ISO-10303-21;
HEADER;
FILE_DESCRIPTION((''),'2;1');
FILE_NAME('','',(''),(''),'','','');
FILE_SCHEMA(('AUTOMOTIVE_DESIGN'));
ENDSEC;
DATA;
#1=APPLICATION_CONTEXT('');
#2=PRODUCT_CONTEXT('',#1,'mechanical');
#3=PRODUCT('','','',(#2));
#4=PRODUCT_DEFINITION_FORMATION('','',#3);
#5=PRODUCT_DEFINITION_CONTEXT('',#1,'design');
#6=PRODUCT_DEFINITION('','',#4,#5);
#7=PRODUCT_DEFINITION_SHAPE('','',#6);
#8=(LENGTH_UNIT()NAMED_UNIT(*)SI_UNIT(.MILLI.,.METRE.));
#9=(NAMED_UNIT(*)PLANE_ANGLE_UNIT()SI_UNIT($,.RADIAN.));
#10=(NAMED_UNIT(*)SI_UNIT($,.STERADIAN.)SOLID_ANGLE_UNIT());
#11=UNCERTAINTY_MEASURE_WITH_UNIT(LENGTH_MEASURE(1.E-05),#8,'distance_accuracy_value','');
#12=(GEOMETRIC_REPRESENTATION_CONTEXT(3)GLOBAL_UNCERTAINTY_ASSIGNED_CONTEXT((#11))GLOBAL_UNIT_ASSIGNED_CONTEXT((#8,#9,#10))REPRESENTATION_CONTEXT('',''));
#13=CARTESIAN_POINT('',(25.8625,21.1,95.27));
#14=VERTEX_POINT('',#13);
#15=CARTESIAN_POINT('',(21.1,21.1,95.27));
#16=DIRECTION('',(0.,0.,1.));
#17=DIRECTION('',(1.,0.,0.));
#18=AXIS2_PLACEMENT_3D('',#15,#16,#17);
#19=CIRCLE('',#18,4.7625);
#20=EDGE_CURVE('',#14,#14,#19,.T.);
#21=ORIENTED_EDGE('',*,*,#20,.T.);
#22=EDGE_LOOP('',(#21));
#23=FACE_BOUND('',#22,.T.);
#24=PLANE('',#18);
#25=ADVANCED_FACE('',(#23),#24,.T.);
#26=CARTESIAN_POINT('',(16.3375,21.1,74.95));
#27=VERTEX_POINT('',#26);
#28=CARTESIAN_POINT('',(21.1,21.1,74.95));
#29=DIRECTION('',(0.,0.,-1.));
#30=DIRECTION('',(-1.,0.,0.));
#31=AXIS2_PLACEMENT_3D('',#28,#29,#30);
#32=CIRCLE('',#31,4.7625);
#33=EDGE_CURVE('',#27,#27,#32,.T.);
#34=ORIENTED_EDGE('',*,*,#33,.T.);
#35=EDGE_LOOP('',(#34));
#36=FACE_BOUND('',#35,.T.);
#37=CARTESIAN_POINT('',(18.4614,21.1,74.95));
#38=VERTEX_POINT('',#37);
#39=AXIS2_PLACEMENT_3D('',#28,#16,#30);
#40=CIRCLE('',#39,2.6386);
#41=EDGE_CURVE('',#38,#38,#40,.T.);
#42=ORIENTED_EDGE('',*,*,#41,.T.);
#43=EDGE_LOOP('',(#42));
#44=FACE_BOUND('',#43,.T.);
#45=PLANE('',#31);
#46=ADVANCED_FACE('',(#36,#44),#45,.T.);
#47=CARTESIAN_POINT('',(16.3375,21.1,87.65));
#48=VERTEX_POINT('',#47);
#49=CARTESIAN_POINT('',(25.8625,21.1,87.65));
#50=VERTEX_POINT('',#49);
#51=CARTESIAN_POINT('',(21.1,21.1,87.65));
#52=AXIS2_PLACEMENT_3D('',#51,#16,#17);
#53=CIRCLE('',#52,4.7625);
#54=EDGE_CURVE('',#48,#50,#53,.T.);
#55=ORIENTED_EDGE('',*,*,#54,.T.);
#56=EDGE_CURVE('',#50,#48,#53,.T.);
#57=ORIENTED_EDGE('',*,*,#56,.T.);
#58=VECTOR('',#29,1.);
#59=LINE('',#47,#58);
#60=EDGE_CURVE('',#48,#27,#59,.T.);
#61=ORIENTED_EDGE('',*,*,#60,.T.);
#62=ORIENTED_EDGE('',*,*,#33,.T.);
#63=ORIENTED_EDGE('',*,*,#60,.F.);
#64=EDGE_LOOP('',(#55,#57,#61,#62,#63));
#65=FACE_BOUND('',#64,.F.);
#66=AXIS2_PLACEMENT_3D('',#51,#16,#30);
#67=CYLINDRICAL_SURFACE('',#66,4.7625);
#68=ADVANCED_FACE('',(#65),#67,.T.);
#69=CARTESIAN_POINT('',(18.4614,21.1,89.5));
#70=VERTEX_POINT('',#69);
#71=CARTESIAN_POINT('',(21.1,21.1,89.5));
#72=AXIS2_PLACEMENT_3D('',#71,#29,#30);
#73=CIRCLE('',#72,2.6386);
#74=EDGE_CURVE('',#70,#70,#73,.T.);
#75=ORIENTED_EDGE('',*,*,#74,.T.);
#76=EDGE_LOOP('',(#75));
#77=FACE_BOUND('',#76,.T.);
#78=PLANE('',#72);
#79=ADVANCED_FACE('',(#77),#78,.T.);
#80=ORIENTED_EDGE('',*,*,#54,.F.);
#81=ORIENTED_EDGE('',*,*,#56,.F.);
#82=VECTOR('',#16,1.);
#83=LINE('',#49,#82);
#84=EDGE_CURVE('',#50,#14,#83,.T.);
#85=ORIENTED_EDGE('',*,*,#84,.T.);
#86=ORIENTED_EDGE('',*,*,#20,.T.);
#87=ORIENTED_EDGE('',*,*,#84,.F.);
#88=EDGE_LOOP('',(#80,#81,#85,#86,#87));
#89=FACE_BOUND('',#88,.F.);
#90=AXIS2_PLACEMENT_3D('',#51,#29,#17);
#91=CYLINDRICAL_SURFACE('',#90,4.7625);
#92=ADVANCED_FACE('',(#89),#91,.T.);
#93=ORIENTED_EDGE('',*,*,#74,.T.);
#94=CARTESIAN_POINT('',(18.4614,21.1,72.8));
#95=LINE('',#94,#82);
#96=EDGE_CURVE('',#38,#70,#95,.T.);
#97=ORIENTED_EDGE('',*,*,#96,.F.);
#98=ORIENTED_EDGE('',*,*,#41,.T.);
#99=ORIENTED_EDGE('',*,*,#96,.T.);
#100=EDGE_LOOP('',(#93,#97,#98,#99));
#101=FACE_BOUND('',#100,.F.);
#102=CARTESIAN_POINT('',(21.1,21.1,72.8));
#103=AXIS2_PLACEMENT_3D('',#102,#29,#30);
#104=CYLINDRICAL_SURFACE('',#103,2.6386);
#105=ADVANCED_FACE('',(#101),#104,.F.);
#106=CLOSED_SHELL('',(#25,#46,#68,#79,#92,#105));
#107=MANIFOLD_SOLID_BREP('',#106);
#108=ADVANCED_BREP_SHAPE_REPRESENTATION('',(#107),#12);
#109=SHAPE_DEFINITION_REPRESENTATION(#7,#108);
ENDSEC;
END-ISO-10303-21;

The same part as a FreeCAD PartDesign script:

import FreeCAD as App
import Part
import Sketcher

V = App.Vector
Q = App.Units.Quantity


def edges_at(feature, points):
    """Names of the edges that pass closest to the given points."""
    edges = feature.Shape.Edges
    near = lambda p: min(range(len(edges)), key=lambda i: edges[i].distToShape(Part.Vertex(*p))[0])
    return sorted({f"Edge{near(p) + 1}" for p in points})

doc = App.newDocument("Part")
body = doc.addObject("PartDesign::Body", "Body")
body.AllowCompound = True

sketch1 = doc.addObject("Sketcher::SketchObject", "Sketch")
body.addObject(sketch1)
sketch1.AttachmentSupport = (doc.XY_Plane, [""])
sketch1.MapMode = "FlatFace"
sketch1.addGeometry([
    Part.LineSegment(V(5, 42.2, 0), V(0, 37.2, 0)),
    Part.LineSegment(V(0, 37.2, 0), V(0, 5, 0)),
    Part.LineSegment(V(0, 5, 0), V(5, 0, 0)),
    Part.LineSegment(V(5, 0, 0), V(37.2, 0, 0)),
    Part.LineSegment(V(37.2, 0, 0), V(42.2, 5, 0)),
    Part.LineSegment(V(42.2, 5, 0), V(42.2, 37.2, 0)),
    Part.LineSegment(V(42.2, 37.2, 0), V(37.2, 42.2, 0)),
    Part.LineSegment(V(37.2, 42.2, 0), V(5, 42.2, 0)),
    Part.Circle(V(5.6, 5.6, 0), V(0, 0, 1), 1.5),
    Part.Circle(V(36.6, 5.6, 0), V(0, 0, 1), 1.5),
    Part.Circle(V(5.6, 36.6, 0), V(0, 0, 1), 1.5),
    Part.Circle(V(21.1, 21.1, 0), V(0, 0, 1), 2.5),
    Part.Circle(V(36.6, 36.6, 0), V(0, 0, 1), 1.5),
], False)
sketch1.addConstraint([
    Sketcher.Constraint("Coincident", 0, 2, 1, 1),
    Sketcher.Constraint("Coincident", 1, 2, 2, 1),
    Sketcher.Constraint("Coincident", 2, 2, 3, 1),
    Sketcher.Constraint("Coincident", 3, 2, 4, 1),
    Sketcher.Constraint("Coincident", 4, 2, 5, 1),
    Sketcher.Constraint("Coincident", 5, 2, 6, 1),
    Sketcher.Constraint("Coincident", 6, 2, 7, 1),
    Sketcher.Constraint("Coincident", 7, 2, 0, 1),
    Sketcher.Constraint("Vertical", 1),
    Sketcher.Constraint("Horizontal", 3),
    Sketcher.Constraint("Vertical", 5),
    Sketcher.Constraint("Horizontal", 7),
    Sketcher.Constraint("Equal", 8, 9),
    Sketcher.Constraint("Equal", 9, 10),
    Sketcher.Constraint("Equal", 10, 12),
    Sketcher.Constraint("PointOnObject", 0, 2, -2),
    Sketcher.Constraint("PointOnObject", 2, 2, -1),
    Sketcher.Constraint("Perpendicular", 0, 2),
    Sketcher.Constraint("Perpendicular", 2, 4),
    Sketcher.Constraint("Perpendicular", 4, 6),
    Sketcher.Constraint("Horizontal", 8, 3, 9, 3),
    Sketcher.Constraint("Horizontal", 10, 3, 12, 3),
    Sketcher.Constraint("Horizontal", 1, 2, 4, 2),
    Sketcher.Constraint("Horizontal", 0, 2, 5, 2),
    Sketcher.Constraint("Vertical", 8, 3, 10, 3),
    Sketcher.Constraint("Vertical", 9, 3, 12, 3),
    Sketcher.Constraint("Vertical", 3, 2, 6, 2),
    Sketcher.Constraint("Vertical", 2, 2, 7, 2),
    Sketcher.Constraint("Equal", 7, 1),
    Sketcher.Constraint("Diameter", 8, Q("3 mm")),
    Sketcher.Constraint("Diameter", 11, Q("5 mm")),
    Sketcher.Constraint("DistanceY", -1, 1, 1, 2, Q("5 mm")),
    Sketcher.Constraint("DistanceX", 8, 3, 9, 3, Q("31 mm")),
    Sketcher.Constraint("DistanceY", 8, 3, 10, 3, Q("31 mm")),
    Sketcher.Constraint("DistanceX", -1, 1, 8, 3, Q("5.6 mm")),
    Sketcher.Constraint("DistanceY", -1, 1, 8, 3, Q("5.6 mm")),
    Sketcher.Constraint("DistanceX", -1, 1, 11, 3, Q("21.1 mm")),
    Sketcher.Constraint("DistanceY", -1, 1, 11, 3, Q("21.1 mm")),
    Sketcher.Constraint("DistanceX", -1, 1, 4, 2, Q("42.2 mm")),
])
pad1 = doc.addObject("PartDesign::Pad", "Pad")
body.addObject(pad1)
pad1.Profile = sketch1
pad1.Length = 9.8
doc.recompute()

fillet = doc.addObject("PartDesign::Fillet", "Fillet")
body.addObject(fillet)
fillet.Base = (pad1, edges_at(pad1, [
    (21.1, 42.2, 9.8),
    (39.7, 39.7, 9.8),
    (42.2, 21.1, 9.8),
    (39.7, 2.5, 9.8),
    (21.1, 0, 9.8),
    (2.5, 2.5, 9.8),
    (0, 21.1, 9.8),
    (2.5, 39.7, 9.8),
]))
fillet.Radius = 0.25

sketch2 = doc.addObject("Sketcher::SketchObject", "Sketch001")
body.addObject(sketch2)
sketch2.AttachmentSupport = (doc.XY_Plane, [""])
sketch2.MapMode = "FlatFace"
sketch2.AttachmentOffset = App.Placement(V(0, 0, 9.8), App.Rotation())
sketch2.addGeometry([
    Part.LineSegment(V(37.2, 42.2, 0), V(5, 42.2, 0)),
    Part.LineSegment(V(5, 42.2, 0), V(0, 37.2, 0)),
    Part.LineSegment(V(0, 37.2, 0), V(0, 5, 0)),
    Part.LineSegment(V(0, 5, 0), V(5, 0, 0)),
    Part.LineSegment(V(5, 0, 0), V(37.2, 0, 0)),
    Part.LineSegment(V(37.2, 0, 0), V(42.2, 5, 0)),
    Part.LineSegment(V(42.2, 5, 0), V(42.2, 37.2, 0)),
    Part.LineSegment(V(42.2, 37.2, 0), V(37.2, 42.2, 0)),
    Part.Circle(V(5.6, 5.6, 0), V(0, 0, 1), 1.5),
    Part.Circle(V(36.6, 5.6, 0), V(0, 0, 1), 1.5),
    Part.Circle(V(5.6, 36.6, 0), V(0, 0, 1), 1.5),
    Part.Circle(V(21.1, 21.1, 0), V(0, 0, 1), 2.5),
    Part.Circle(V(36.6, 36.6, 0), V(0, 0, 1), 1.5),
], False)
sketch2.addConstraint([
    Sketcher.Constraint("Coincident", 0, 2, 1, 1),
    Sketcher.Constraint("Coincident", 1, 2, 2, 1),
    Sketcher.Constraint("Coincident", 2, 2, 3, 1),
    Sketcher.Constraint("Coincident", 3, 2, 4, 1),
    Sketcher.Constraint("Coincident", 4, 2, 5, 1),
    Sketcher.Constraint("Coincident", 5, 2, 6, 1),
    Sketcher.Constraint("Coincident", 6, 2, 7, 1),
    Sketcher.Constraint("Coincident", 7, 2, 0, 1),
    Sketcher.Constraint("Horizontal", 0),
    Sketcher.Constraint("Vertical", 2),
    Sketcher.Constraint("Horizontal", 4),
    Sketcher.Constraint("Vertical", 6),
    Sketcher.Constraint("Equal", 8, 9),
    Sketcher.Constraint("Equal", 9, 10),
    Sketcher.Constraint("Equal", 10, 12),
    Sketcher.Constraint("PointOnObject", 1, 2, -2),
    Sketcher.Constraint("PointOnObject", 3, 2, -1),
    Sketcher.Constraint("Perpendicular", 1, 3),
    Sketcher.Constraint("Perpendicular", 3, 5),
    Sketcher.Constraint("Perpendicular", 5, 7),
    Sketcher.Constraint("Horizontal", 8, 3, 9, 3),
    Sketcher.Constraint("Horizontal", 10, 3, 12, 3),
    Sketcher.Constraint("Horizontal", 2, 2, 5, 2),
    Sketcher.Constraint("Horizontal", 1, 2, 6, 2),
    Sketcher.Constraint("Vertical", 8, 3, 10, 3),
    Sketcher.Constraint("Vertical", 9, 3, 12, 3),
    Sketcher.Constraint("Vertical", 0, 2, 3, 2),
    Sketcher.Constraint("Vertical", 4, 2, 7, 2),
    Sketcher.Constraint("Equal", 4, 2),
    Sketcher.Constraint("Diameter", 8, Q("3 mm")),
    Sketcher.Constraint("Diameter", 11, Q("5 mm")),
    Sketcher.Constraint("DistanceX", 0, 2, 0, 1, Q("32.2 mm")),
    Sketcher.Constraint("DistanceX", -1, 1, 0, 2, Q("5 mm")),
    Sketcher.Constraint("DistanceX", 8, 3, 9, 3, Q("31 mm")),
    Sketcher.Constraint("DistanceY", 8, 3, 10, 3, Q("31 mm")),
    Sketcher.Constraint("DistanceX", -1, 1, 8, 3, Q("5.6 mm")),
    Sketcher.Constraint("DistanceY", -1, 1, 8, 3, Q("5.6 mm")),
    Sketcher.Constraint("DistanceX", -1, 1, 11, 3, Q("21.1 mm")),
    Sketcher.Constraint("DistanceY", -1, 1, 11, 3, Q("21.1 mm")),
])
pad2 = doc.addObject("PartDesign::Pad", "Pad001")
body.addObject(pad2)
pad2.Profile = sketch2
pad2.Length = 31
doc.recompute()

fillet2 = doc.addObject("PartDesign::Fillet", "Fillet001")
body.addObject(fillet2)
fillet2.Base = (pad2, edges_at(pad2, [
    (21.1, 42.2, 40.8),
    (39.7, 39.7, 40.8),
    (42.2, 21.1, 40.8),
    (39.7, 2.5, 40.8),
    (21.1, 0, 40.8),
    (2.5, 2.5, 40.8),
    (0, 21.1, 40.8),
    (2.5, 39.7, 40.8),
]))
fillet2.Radius = 0.25

sketch3 = doc.addObject("Sketcher::SketchObject", "Sketch002")
body.addObject(sketch3)
sketch3.AttachmentSupport = (doc.XY_Plane, [""])
sketch3.MapMode = "FlatFace"
sketch3.AttachmentOffset = App.Placement(V(0, 0, 40.8), App.Rotation())
sketch3.addGeometry([
    Part.LineSegment(V(37.2, 42.2, 0), V(5, 42.2, 0)),
    Part.LineSegment(V(5, 42.2, 0), V(0, 37.2, 0)),
    Part.LineSegment(V(0, 37.2, 0), V(0, 5, 0)),
    Part.LineSegment(V(0, 5, 0), V(5, 0, 0)),
    Part.LineSegment(V(5, 0, 0), V(37.2, 0, 0)),
    Part.LineSegment(V(37.2, 0, 0), V(42.2, 5, 0)),
    Part.LineSegment(V(42.2, 5, 0), V(42.2, 37.2, 0)),
    Part.LineSegment(V(42.2, 37.2, 0), V(37.2, 42.2, 0)),
    Part.Circle(V(5.6, 5.6, 0), V(0, 0, 1), 1.5),
    Part.Circle(V(36.6, 5.6, 0), V(0, 0, 1), 1.5),
    Part.Circle(V(5.6, 36.6, 0), V(0, 0, 1), 1.5),
    Part.Circle(V(21.1, 21.1, 0), V(0, 0, 1), 2.5),
    Part.Circle(V(36.6, 36.6, 0), V(0, 0, 1), 1.5),
], False)
sketch3.addConstraint([
    Sketcher.Constraint("Coincident", 0, 2, 1, 1),
    Sketcher.Constraint("Coincident", 1, 2, 2, 1),
    Sketcher.Constraint("Coincident", 2, 2, 3, 1),
    Sketcher.Constraint("Coincident", 3, 2, 4, 1),
    Sketcher.Constraint("Coincident", 4, 2, 5, 1),
    Sketcher.Constraint("Coincident", 5, 2, 6, 1),
    Sketcher.Constraint("Coincident", 6, 2, 7, 1),
    Sketcher.Constraint("Coincident", 7, 2, 0, 1),
    Sketcher.Constraint("Horizontal", 0),
    Sketcher.Constraint("Vertical", 2),
    Sketcher.Constraint("Horizontal", 4),
    Sketcher.Constraint("Vertical", 6),
    Sketcher.Constraint("Equal", 8, 9),
    Sketcher.Constraint("Equal", 9, 10),
    Sketcher.Constraint("Equal", 10, 12),
    Sketcher.Constraint("PointOnObject", 1, 2, -2),
    Sketcher.Constraint("PointOnObject", 3, 2, -1),
    Sketcher.Constraint("Perpendicular", 1, 3),
    Sketcher.Constraint("Perpendicular", 3, 5),
    Sketcher.Constraint("Perpendicular", 5, 7),
    Sketcher.Constraint("Horizontal", 8, 3, 9, 3),
    Sketcher.Constraint("Horizontal", 10, 3, 12, 3),
    Sketcher.Constraint("Horizontal", 2, 2, 5, 2),
    Sketcher.Constraint("Horizontal", 1, 2, 6, 2),
    Sketcher.Constraint("Vertical", 8, 3, 10, 3),
    Sketcher.Constraint("Vertical", 9, 3, 12, 3),
    Sketcher.Constraint("Vertical", 0, 2, 3, 2),
    Sketcher.Constraint("Vertical", 4, 2, 7, 2),
    Sketcher.Constraint("Equal", 4, 2),
    Sketcher.Constraint("Diameter", 8, Q("3 mm")),
    Sketcher.Constraint("Diameter", 11, Q("5 mm")),
    Sketcher.Constraint("DistanceX", 0, 2, 0, 1, Q("32.2 mm")),
    Sketcher.Constraint("DistanceX", -1, 1, 0, 2, Q("5 mm")),
    Sketcher.Constraint("DistanceX", 8, 3, 9, 3, Q("31 mm")),
    Sketcher.Constraint("DistanceY", 8, 3, 10, 3, Q("31 mm")),
    Sketcher.Constraint("DistanceX", -1, 1, 8, 3, Q("5.6 mm")),
    Sketcher.Constraint("DistanceY", -1, 1, 8, 3, Q("5.6 mm")),
    Sketcher.Constraint("DistanceX", -1, 1, 11, 3, Q("21.1 mm")),
    Sketcher.Constraint("DistanceY", -1, 1, 11, 3, Q("21.1 mm")),
])
pad3 = doc.addObject("PartDesign::Pad", "Pad002")
body.addObject(pad3)
pad3.Profile = sketch3
pad3.Length = 7.75

sketch4 = doc.addObject("Sketcher::SketchObject", "Sketch003")
body.addObject(sketch4)
sketch4.AttachmentSupport = (doc.XY_Plane, [""])
sketch4.MapMode = "FlatFace"
sketch4.AttachmentOffset = App.Placement(V(0, 0, 48.55), App.Rotation())
sketch4.addGeometry([
    Part.Circle(V(21.1, 21.1, 0), V(0, 0, 1), 16),
    Part.Circle(V(21.1, 21.1, 0), V(0, 0, 1), 2.5),
], False)
sketch4.addConstraint([
    Sketcher.Constraint("Coincident", 1, 3, 0, 3),
    Sketcher.Constraint("Diameter", 0, Q("32 mm")),
    Sketcher.Constraint("Diameter", 1, Q("5 mm")),
    Sketcher.Constraint("DistanceX", -1, 1, 0, 3, Q("21.1 mm")),
    Sketcher.Constraint("DistanceY", -1, 1, 0, 3, Q("21.1 mm")),
])
pocket1 = doc.addObject("PartDesign::Pocket", "Pocket")
body.addObject(pocket1)
pocket1.Profile = sketch4
pocket1.Length = 0.6

sketch5 = doc.addObject("Sketcher::SketchObject", "Sketch004")
body.addObject(sketch5)
sketch5.AttachmentSupport = (doc.XY_Plane, [""])
sketch5.MapMode = "FlatFace"
sketch5.AttachmentOffset = App.Placement(V(0, 0, 47.95), App.Rotation())
sketch5.addGeometry([
    Part.Circle(V(21.1, 21.1, 0), V(0, 0, 1), 11),
    Part.Circle(V(21.1, 21.1, 0), V(0, 0, 1), 2.5),
], False)
sketch5.addConstraint([
    Sketcher.Constraint("Coincident", 1, 3, 0, 3),
    Sketcher.Constraint("Diameter", 0, Q("22 mm")),
    Sketcher.Constraint("Diameter", 1, Q("5 mm")),
    Sketcher.Constraint("DistanceX", -1, 1, 0, 3, Q("21.1 mm")),
    Sketcher.Constraint("DistanceY", -1, 1, 0, 3, Q("21.1 mm")),
])
pad4 = doc.addObject("PartDesign::Pad", "Pad003")
body.addObject(pad4)
pad4.Profile = sketch5
pad4.Length = 2.2
doc.recompute()

fillet3 = doc.addObject("PartDesign::Fillet", "Fillet002")
body.addObject(fillet3)
fillet3.Base = (pad4, edges_at(pad4, [(10.1, 21.1, 50.15)]))
fillet3.Radius = 0.5

sketch6 = doc.addObject("Sketcher::SketchObject", "Sketch005")
body.addObject(sketch6)
sketch6.AttachmentSupport = (doc.XY_Plane, [""])
sketch6.MapMode = "FlatFace"
sketch6.AttachmentOffset = App.Placement(V(0, 0, 50.15), App.Rotation())
sketch6.addGeometry(Part.Circle(V(21.1, 21.1, 0), V(0, 0, 1), 2.5), False)
sketch6.addConstraint([
    Sketcher.Constraint("Diameter", 0, Q("5 mm")),
    Sketcher.Constraint("DistanceX", -1, 1, 0, 3, Q("21.1 mm")),
    Sketcher.Constraint("DistanceY", -1, 1, 0, 3, Q("21.1 mm")),
])
pad5 = doc.addObject("PartDesign::Pad", "Pad004")
body.addObject(pad5)
pad5.Profile = sketch6
pad5.Length = 22.5
doc.recompute()

fillet4 = doc.addObject("PartDesign::Fillet", "Fillet003")
body.addObject(fillet4)
fillet4.Base = (pad5, edges_at(pad5, [(18.6, 21.1, 72.65)]))
fillet4.Radius = 0.5

sketch7 = doc.addObject("Sketcher::SketchObject", "Sketch006")
body.addObject(sketch7)
sketch7.AttachmentSupport = (doc.XY_Plane, [""])
sketch7.MapMode = "FlatFace"
sketch7.AttachmentOffset = App.Placement(V(0, 0, 72.65), App.Rotation())
sketch7.addGeometry(Part.Circle(V(21.1, 21.1, 0), V(0, 0, 1), 2.6), False)
sketch7.addConstraint([
    Sketcher.Constraint("Diameter", 0, Q("5.2772 mm")),
    Sketcher.Constraint("DistanceX", -1, 1, 0, 3, Q("21.1 mm")),
    Sketcher.Constraint("DistanceY", -1, 1, 0, 3, Q("21.1 mm")),
])
pad6 = doc.addObject("PartDesign::Pad", "Pad005")
body.addObject(pad6)
pad6.Profile = sketch7
pad6.Length = 15

sketch8 = doc.addObject("Sketcher::SketchObject", "Sketch007")
body.addObject(sketch8)
sketch8.AttachmentSupport = (doc.XY_Plane, [""])
sketch8.MapMode = "FlatFace"
sketch8.AttachmentOffset = App.Placement(V(0, 0, 87.65), App.Rotation())
sketch8.addGeometry(Part.Circle(V(21.1, 21.1, 0), V(0, 0, 1), 4.8), False)
sketch8.addConstraint([
    Sketcher.Constraint("Diameter", 0, Q("9.525 mm")),
    Sketcher.Constraint("DistanceX", -1, 1, 0, 3, Q("21.1 mm")),
    Sketcher.Constraint("DistanceY", -1, 1, 0, 3, Q("21.1 mm")),
])
pad7 = doc.addObject("PartDesign::Pad", "Pad006")
body.addObject(pad7)
pad7.Profile = sketch8
pad7.Length = 12.7

sketch9 = doc.addObject("Sketcher::SketchObject", "Sketch008")
body.addObject(sketch9)
sketch9.AttachmentSupport = (doc.XY_Plane, [""])
sketch9.MapMode = "FlatFace"
sketch9.AttachmentOffset = App.Placement(V(0, 0, 87.65), App.Rotation())
sketch9.addGeometry([
    Part.Circle(V(21.1, 21.1, 0), V(0, 0, 1), 4.8),
    Part.Circle(V(21.1, 21.1, 0), V(0, 0, 1), 2.6),
], False)
sketch9.addConstraint([
    Sketcher.Constraint("Coincident", 1, 3, 0, 3),
    Sketcher.Constraint("Diameter", 0, Q("9.525 mm")),
    Sketcher.Constraint("Diameter", 1, Q("5.2772 mm")),
    Sketcher.Constraint("DistanceX", -1, 1, 0, 3, Q("21.1 mm")),
    Sketcher.Constraint("DistanceY", -1, 1, 0, 3, Q("21.1 mm")),
])
pad8 = doc.addObject("PartDesign::Pad", "Pad007")
body.addObject(pad8)
pad8.Profile = sketch9
pad8.Length = 12.7
pad8.Reversed = True

sketch10 = doc.addObject("Sketcher::SketchObject", "Sketch009")
body.addObject(sketch10)
sketch10.AttachmentSupport = (doc.XY_Plane, [""])
sketch10.MapMode = "FlatFace"
sketch10.addGeometry([
    Part.LineSegment(V(0, 5, 0), V(0, 37, 0)),
    Part.LineSegment(V(0, 37, 0), V(5, 42, 0)),
    Part.LineSegment(V(5, 42, 0), V(37, 42, 0)),
    Part.LineSegment(V(37, 42, 0), V(42, 37, 0)),
    Part.LineSegment(V(42, 37, 0), V(42, 5, 0)),
    Part.LineSegment(V(42, 5, 0), V(37, 0, 0)),
    Part.LineSegment(V(37, 0, 0), V(5, 0, 0)),
    Part.LineSegment(V(5, 0, 0), V(0, 5, 0)),
], False)
sketch10.addConstraint([
    Sketcher.Constraint("Coincident", 0, 2, 1, 1),
    Sketcher.Constraint("Coincident", 1, 2, 2, 1),
    Sketcher.Constraint("Coincident", 2, 2, 3, 1),
    Sketcher.Constraint("Coincident", 3, 2, 4, 1),
    Sketcher.Constraint("Coincident", 4, 2, 5, 1),
    Sketcher.Constraint("Coincident", 5, 2, 6, 1),
    Sketcher.Constraint("Coincident", 6, 2, 7, 1),
    Sketcher.Constraint("Coincident", 7, 2, 0, 1),
    Sketcher.Constraint("Vertical", 0),
    Sketcher.Constraint("Horizontal", 2),
    Sketcher.Constraint("Vertical", 4),
    Sketcher.Constraint("Horizontal", 6),
    Sketcher.Constraint("PointOnObject", 0, 2, -2),
    Sketcher.Constraint("PointOnObject", 5, 2, -1),
    Sketcher.Constraint("Perpendicular", 1, 3),
    Sketcher.Constraint("Perpendicular", 3, 5),
    Sketcher.Constraint("Perpendicular", 5, 7),
    Sketcher.Constraint("Horizontal", 0, 2, 3, 2),
    Sketcher.Constraint("Horizontal", 4, 2, 7, 2),
    Sketcher.Constraint("Vertical", 2, 2, 5, 2),
    Sketcher.Constraint("Vertical", 1, 2, 6, 2),
    Sketcher.Constraint("Equal", 6, 0),
    Sketcher.Constraint("DistanceX", 2, 1, 2, 2, Q("32.2 mm")),
    Sketcher.Constraint("DistanceX", -1, 1, 1, 2, Q("5 mm")),
])
pocket2 = doc.addObject("PartDesign::Pocket", "Pocket001")
body.addObject(pocket2)
pocket2.Profile = sketch10
pocket2.Length = 72.8
pocket2.Reversed = True

sketch11 = doc.addObject("Sketcher::SketchObject", "Sketch010")
body.addObject(sketch11)
sketch11.AttachmentSupport = (doc.XY_Plane, [""])
sketch11.MapMode = "FlatFace"
sketch11.AttachmentOffset = App.Placement(V(0, 0, 72.8), App.Rotation())
sketch11.addGeometry(Part.Circle(V(21.1, 21.1, 0), V(0, 0, 1), 2.6), False)
sketch11.addConstraint([
    Sketcher.Constraint("Diameter", 0, Q("5.2772 mm")),
    Sketcher.Constraint("DistanceX", -1, 1, 0, 3, Q("21.1 mm")),
    Sketcher.Constraint("DistanceY", -1, 1, 0, 3, Q("21.1 mm")),
])
pocket3 = doc.addObject("PartDesign::Pocket", "Pocket002")
body.addObject(pocket3)
pocket3.Profile = sketch11
pocket3.Length = 16.7
pocket3.Reversed = True

sketch12 = doc.addObject("Sketcher::SketchObject", "Sketch011")
body.addObject(sketch12)
sketch12.AttachmentSupport = (doc.XY_Plane, [""])
sketch12.MapMode = "FlatFace"
sketch12.AttachmentOffset = App.Placement(V(0, 0, 100.35), App.Rotation())
sketch12.addGeometry(Part.Circle(V(21.1, 21.1, 0), V(0, 0, 1), 4.8), False)
sketch12.addConstraint([
    Sketcher.Constraint("Diameter", 0, Q("9.525 mm")),
    Sketcher.Constraint("DistanceX", -1, 1, 0, 3, Q("21.1 mm")),
    Sketcher.Constraint("DistanceY", -1, 1, 0, 3, Q("21.1 mm")),
])
pocket4 = doc.addObject("PartDesign::Pocket", "Pocket003")
body.addObject(pocket4)
pocket4.Profile = sketch12
pocket4.Length = 5.08

doc.recompute()
